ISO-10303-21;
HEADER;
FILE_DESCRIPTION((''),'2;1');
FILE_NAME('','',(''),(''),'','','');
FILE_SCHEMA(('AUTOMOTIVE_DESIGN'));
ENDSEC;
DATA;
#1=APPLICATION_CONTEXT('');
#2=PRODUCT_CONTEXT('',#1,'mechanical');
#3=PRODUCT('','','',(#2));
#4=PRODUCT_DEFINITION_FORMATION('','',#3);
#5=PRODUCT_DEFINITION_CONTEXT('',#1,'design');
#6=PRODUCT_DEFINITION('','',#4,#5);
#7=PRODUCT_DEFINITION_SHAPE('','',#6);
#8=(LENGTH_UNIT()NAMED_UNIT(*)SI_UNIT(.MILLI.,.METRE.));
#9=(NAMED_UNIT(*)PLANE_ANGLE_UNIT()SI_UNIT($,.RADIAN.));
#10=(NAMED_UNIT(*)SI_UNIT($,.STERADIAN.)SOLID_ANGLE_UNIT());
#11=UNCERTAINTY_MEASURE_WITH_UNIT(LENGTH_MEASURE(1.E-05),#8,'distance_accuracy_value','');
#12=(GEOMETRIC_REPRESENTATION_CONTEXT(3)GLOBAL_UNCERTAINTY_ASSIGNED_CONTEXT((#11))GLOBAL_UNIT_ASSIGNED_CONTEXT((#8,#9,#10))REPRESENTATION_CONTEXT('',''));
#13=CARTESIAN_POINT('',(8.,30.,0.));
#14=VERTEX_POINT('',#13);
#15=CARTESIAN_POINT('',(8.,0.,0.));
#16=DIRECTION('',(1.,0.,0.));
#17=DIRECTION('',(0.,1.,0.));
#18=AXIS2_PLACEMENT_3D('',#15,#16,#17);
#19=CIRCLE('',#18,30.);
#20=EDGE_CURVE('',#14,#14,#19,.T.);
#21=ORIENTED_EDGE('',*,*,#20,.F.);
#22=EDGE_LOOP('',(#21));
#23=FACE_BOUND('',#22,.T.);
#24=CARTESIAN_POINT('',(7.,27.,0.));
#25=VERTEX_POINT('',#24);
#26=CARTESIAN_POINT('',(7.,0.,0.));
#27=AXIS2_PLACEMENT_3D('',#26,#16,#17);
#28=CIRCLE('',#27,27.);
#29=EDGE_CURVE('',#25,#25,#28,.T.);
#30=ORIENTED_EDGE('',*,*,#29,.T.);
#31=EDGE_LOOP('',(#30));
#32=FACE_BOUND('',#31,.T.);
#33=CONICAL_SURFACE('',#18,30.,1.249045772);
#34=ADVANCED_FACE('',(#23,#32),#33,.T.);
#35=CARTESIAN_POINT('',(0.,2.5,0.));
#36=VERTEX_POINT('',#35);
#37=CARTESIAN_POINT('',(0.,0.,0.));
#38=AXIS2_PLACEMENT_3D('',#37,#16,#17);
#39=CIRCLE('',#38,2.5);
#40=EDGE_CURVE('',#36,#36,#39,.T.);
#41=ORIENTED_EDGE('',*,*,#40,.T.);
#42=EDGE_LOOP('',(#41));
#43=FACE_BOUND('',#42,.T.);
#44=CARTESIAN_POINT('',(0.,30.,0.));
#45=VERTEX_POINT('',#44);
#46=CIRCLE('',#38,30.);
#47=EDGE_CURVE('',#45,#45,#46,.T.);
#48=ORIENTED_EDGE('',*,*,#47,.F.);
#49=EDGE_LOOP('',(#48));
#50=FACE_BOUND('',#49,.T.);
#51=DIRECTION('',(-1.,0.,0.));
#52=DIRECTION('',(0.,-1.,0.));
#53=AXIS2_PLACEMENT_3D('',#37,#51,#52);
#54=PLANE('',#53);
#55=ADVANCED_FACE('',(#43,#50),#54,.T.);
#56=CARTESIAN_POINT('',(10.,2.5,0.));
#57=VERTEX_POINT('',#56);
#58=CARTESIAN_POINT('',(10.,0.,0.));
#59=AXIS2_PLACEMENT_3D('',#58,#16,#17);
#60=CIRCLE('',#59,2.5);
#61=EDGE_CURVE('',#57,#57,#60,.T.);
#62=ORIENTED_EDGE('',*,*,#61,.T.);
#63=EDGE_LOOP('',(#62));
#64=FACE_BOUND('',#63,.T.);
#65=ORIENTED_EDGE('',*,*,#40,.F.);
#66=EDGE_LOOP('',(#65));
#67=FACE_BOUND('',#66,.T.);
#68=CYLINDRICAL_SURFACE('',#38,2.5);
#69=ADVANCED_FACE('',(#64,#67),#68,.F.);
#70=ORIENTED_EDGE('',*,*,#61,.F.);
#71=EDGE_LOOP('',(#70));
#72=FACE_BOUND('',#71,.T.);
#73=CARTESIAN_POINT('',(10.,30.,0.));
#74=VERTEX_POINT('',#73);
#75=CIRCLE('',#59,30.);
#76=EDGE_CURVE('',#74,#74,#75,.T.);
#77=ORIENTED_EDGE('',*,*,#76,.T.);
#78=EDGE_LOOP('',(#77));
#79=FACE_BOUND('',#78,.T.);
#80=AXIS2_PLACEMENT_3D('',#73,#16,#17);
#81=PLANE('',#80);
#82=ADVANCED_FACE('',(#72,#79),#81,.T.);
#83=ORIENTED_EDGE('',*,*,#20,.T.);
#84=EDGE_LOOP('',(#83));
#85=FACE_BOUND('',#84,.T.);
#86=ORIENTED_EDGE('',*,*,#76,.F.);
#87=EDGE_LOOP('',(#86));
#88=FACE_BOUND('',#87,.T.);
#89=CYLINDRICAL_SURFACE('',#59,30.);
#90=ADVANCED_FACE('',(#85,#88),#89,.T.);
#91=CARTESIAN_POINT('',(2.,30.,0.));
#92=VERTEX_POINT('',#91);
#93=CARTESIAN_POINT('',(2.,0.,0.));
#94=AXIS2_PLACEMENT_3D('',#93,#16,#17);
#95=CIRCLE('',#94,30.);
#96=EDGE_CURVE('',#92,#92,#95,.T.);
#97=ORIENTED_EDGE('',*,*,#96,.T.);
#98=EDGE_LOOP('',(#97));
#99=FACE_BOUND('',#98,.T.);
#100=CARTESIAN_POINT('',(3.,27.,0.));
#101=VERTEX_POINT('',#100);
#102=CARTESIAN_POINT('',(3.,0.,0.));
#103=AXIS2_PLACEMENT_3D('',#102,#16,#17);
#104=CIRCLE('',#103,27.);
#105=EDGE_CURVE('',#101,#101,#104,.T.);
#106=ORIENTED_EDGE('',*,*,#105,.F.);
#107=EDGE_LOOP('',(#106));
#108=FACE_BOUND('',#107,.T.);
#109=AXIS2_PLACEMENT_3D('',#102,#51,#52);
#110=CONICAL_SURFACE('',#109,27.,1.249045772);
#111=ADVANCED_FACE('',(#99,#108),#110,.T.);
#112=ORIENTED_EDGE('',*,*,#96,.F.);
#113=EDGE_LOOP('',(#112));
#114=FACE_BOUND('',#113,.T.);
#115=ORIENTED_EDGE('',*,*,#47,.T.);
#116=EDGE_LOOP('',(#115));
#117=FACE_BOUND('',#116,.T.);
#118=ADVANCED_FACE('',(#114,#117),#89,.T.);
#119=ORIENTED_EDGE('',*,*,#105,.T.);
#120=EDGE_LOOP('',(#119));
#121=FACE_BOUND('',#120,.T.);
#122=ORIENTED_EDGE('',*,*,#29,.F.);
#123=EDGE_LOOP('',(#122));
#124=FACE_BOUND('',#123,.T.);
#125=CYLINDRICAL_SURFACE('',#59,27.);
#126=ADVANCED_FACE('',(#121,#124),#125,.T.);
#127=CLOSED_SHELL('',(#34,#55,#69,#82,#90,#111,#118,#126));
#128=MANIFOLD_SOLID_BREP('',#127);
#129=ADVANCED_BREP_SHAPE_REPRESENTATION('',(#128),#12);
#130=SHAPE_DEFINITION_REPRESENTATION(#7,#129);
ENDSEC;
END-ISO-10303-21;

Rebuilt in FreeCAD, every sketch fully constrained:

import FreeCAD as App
import Part
import Sketcher
from FreeCAD import Vector
Q = App.Units.Quantity

doc = App.newDocument("Part")
body = doc.addObject("PartDesign::Body", "Body")

# Sketch on XY plane
sketch1 = body.newObject("Sketcher::SketchObject", "Sketch")
sketch1.AttachmentSupport = (doc.getObject("XY_Plane"), [""])
sketch1.MapMode = "FlatFace"
sketch1.addGeometry([
    Part.LineSegment(Vector(0, 30, 0), Vector(0, 0, 0)),  # 0
    Part.LineSegment(Vector(0, 0, 0), Vector(10, 0, 0)),  # 1
    Part.LineSegment(Vector(10, 0, 0), Vector(10, 30, 0)),  # 2
    Part.LineSegment(Vector(10, 30, 0), Vector(8, 30, 0)),  # 3
    Part.LineSegment(Vector(8, 30, 0), Vector(7, 27, 0)),  # 4
    Part.LineSegment(Vector(7, 27, 0), Vector(3, 27, 0)),  # 5
    Part.LineSegment(Vector(3, 27, 0), Vector(2, 30, 0)),  # 6
    Part.LineSegment(Vector(2, 30, 0), Vector(0, 30, 0)),  # 7
], False)
sketch1.addConstraint([
    Sketcher.Constraint("Coincident", 0, 2, 1, 1),
    Sketcher.Constraint("Coincident", 1, 2, 2, 1),
    Sketcher.Constraint("Coincident", 2, 2, 3, 1),
    Sketcher.Constraint("Coincident", 3, 2, 4, 1),
    Sketcher.Constraint("Coincident", 4, 2, 5, 1),
    Sketcher.Constraint("Coincident", 5, 2, 6, 1),
    Sketcher.Constraint("Coincident", 6, 2, 7, 1),
    Sketcher.Constraint("Coincident", 7, 2, 0, 1),
    Sketcher.Constraint("Vertical", 0),
    Sketcher.Constraint("Horizontal", 1),
    Sketcher.Constraint("Vertical", 2),
    Sketcher.Constraint("Horizontal", 3),
    Sketcher.Constraint("Horizontal", 5),
    Sketcher.Constraint("Horizontal", 7),
    Sketcher.Constraint("Coincident", 0, 2, -1, 1),
    Sketcher.Constraint("Horizontal", 3, 2, 6, 2),
    Sketcher.Constraint("Equal", 3, 7),
    Sketcher.Constraint("Equal", 4, 6),
    Sketcher.Constraint("DistanceX", 1, 1, 1, 2, Q("10 mm")),
    Sketcher.Constraint("DistanceX", 3, 2, 3, 1, Q("2 mm")),
    Sketcher.Constraint("DistanceX", 5, 2, 5, 1, Q("4 mm")),
    Sketcher.Constraint("DistanceY", 0, 2, 0, 1, Q("30 mm")),
    Sketcher.Constraint("DistanceY", -1, 1, 4, 2, Q("27 mm")),
])
revolution = body.newObject("PartDesign::Revolution", "Revolution")
revolution.Profile = sketch1
revolution.ReferenceAxis = (sketch1, ["H_Axis"])
revolution.Angle = 360

# Sketch on YZ plane
sketch2 = body.newObject("Sketcher::SketchObject", "Sketch001")
sketch2.AttachmentSupport = (doc.getObject("YZ_Plane"), [""])
sketch2.MapMode = "FlatFace"
sketch2.AttachmentOffset = App.Placement(Vector(0, 0, 10), App.Rotation())
sketch2.addGeometry(Part.Circle(Vector(0, 0, 0), Vector(0, 0, 1), 2.5), False)
sketch2.addConstraint([
    Sketcher.Constraint("Coincident", 0, 3, -1, 1),
    Sketcher.Constraint("Diameter", 0, Q("5 mm")),
])
pocket1 = body.newObject("PartDesign::Pocket", "Pocket")
pocket1.Profile = sketch2
pocket1.Length = 10

doc.recompute()
